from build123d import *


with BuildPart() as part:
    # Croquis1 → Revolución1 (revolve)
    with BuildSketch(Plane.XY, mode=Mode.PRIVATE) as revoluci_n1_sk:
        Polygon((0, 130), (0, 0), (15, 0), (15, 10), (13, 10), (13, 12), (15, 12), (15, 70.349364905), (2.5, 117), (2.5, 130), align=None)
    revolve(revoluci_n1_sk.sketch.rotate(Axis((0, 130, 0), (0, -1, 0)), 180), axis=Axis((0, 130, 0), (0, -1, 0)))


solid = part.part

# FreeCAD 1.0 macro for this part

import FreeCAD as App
import Part
import Sketcher

V = App.Vector
Q = App.Units.Quantity


def add_polygon(sketch, points):
    """Adds a closed chain of lines whose ends are joined by coincident constraints."""
    first, n = sketch.GeometryCount, len(points)
    for a, b in zip(points, points[1:] + points[:1]):
        sketch.addGeometry(Part.LineSegment(App.Vector(*a, 0), App.Vector(*b, 0)), False)
    for i in range(n):
        sketch.addConstraint(Sketcher.Constraint("Coincident", first + i, 2, first + (i + 1) % n, 1))

doc = App.newDocument("Part")
body = doc.addObject("PartDesign::Body", "Body")

sketch1 = body.newObject("Sketcher::SketchObject", "Sketch")
sketch1.AttachmentSupport = (doc.getObject("XY_Plane"), [""])
sketch1.MapMode = "FlatFace"
add_polygon(sketch1, [(0, 130), (0, 0), (15, 0), (15, 10), (13, 10), (13, 12), (15, 12), (15, 70.3), (2.5, 117), (2.5, 130)])
sketch1.addConstraint(Sketcher.Constraint("Vertical", 0))
sketch1.addConstraint(Sketcher.Constraint("Horizontal", 1))
sketch1.addConstraint(Sketcher.Constraint("Vertical", 2))
sketch1.addConstraint(Sketcher.Constraint("Horizontal", 3))
sketch1.addConstraint(Sketcher.Constraint("Vertical", 4))
sketch1.addConstraint(Sketcher.Constraint("Horizontal", 5))
sketch1.addConstraint(Sketcher.Constraint("Vertical", 6))
sketch1.addConstraint(Sketcher.Constraint("Vertical", 8))
sketch1.addConstraint(Sketcher.Constraint("Horizontal", 9))
sketch1.addConstraint(Sketcher.Constraint("Coincident", 0, 2, -1, 1))
sketch1.addConstraint(Sketcher.Constraint("Vertical", 2, 2, 5, 2))
sketch1.addConstraint(Sketcher.Constraint("Equal", 5, 4))
sketch1.addConstraint(Sketcher.Constraint("DistanceX", 1, 1, 1, 2, 15.0))
sketch1.addConstraint(Sketcher.Constraint("DistanceX", 3, 2, 3, 1, 2.0))
sketch1.addConstraint(Sketcher.Constraint("DistanceY", 0, 2, 0, 1, 130.0))
sketch1.addConstraint(Sketcher.Constraint("DistanceY", 2, 1, 2, 2, 10.0))
sketch1.addConstraint(Sketcher.Constraint("DistanceY", 8, 1, 8, 2, 13.0))
sketch1.addConstraint(Sketcher.Constraint("Angle", 7, Q("105 deg")))
sketch1.addConstraint(Sketcher.Constraint("DistanceX", 9, 2, 9, 1, 2.5))
revolution = body.newObject("PartDesign::Revolution", "Revolution")
revolution.Profile = sketch1
revolution.ReferenceAxis = (sketch1, ["V_Axis"])
revolution.Angle = 360

doc.recompute()
